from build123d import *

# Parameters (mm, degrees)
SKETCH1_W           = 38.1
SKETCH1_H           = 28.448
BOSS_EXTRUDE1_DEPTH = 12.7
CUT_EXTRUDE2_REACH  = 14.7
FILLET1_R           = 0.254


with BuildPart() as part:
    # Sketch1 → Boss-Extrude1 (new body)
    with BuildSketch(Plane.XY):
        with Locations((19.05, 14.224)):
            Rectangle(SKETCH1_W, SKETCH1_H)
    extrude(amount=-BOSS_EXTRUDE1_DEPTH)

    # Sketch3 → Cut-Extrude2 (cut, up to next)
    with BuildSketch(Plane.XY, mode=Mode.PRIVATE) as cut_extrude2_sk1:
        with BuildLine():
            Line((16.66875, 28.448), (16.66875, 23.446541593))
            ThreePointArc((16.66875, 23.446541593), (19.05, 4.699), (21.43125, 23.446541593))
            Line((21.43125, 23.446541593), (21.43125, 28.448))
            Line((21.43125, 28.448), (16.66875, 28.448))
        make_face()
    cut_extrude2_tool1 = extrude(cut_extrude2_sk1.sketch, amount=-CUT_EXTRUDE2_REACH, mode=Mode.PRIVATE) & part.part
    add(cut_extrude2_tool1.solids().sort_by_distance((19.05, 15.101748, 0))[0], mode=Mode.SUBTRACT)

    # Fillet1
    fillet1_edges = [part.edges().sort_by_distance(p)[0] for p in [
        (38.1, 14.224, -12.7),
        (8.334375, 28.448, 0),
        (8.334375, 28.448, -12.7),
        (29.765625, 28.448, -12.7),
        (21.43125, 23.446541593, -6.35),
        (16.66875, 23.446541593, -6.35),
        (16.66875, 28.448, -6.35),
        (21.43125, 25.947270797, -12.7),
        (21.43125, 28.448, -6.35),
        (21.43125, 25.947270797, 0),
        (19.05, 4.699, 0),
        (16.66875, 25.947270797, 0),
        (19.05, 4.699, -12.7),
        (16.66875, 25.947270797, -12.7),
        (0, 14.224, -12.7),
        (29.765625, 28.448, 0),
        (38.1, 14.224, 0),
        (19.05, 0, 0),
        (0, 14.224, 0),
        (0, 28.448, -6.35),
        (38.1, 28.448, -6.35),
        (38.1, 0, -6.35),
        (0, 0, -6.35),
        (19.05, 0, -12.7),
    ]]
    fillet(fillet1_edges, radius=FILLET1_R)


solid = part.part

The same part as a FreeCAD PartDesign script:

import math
import FreeCAD as App
import Part
import Sketcher
from FreeCAD import Vector
Q = App.Units.Quantity

doc = App.newDocument("Part")
body = doc.addObject("PartDesign::Body", "Body")

sketch1 = doc.addObject("Sketcher::SketchObject", "Sketch")
body.addObject(sketch1)
sketch1.AttachmentSupport = (doc.XY_Plane, [""])
sketch1.MapMode = "FlatFace"
sketch1.addGeometry([
    Part.LineSegment(Vector(0, 28, 0), Vector(0, 0, 0)),
    Part.LineSegment(Vector(0, 0, 0), Vector(38, 0, 0)),
    Part.LineSegment(Vector(38, 0, 0), Vector(38, 28, 0)),
    Part.LineSegment(Vector(38, 28, 0), Vector(0, 28, 0)),
], False)
sketch1.addConstraint([
    Sketcher.Constraint("Coincident", 0, 2, 1, 1),
    Sketcher.Constraint("Coincident", 1, 2, 2, 1),
    Sketcher.Constraint("Coincident", 2, 2, 3, 1),
    Sketcher.Constraint("Coincident", 3, 2, 0, 1),
    Sketcher.Constraint("Vertical", 0),
    Sketcher.Constraint("Horizontal", 1),
    Sketcher.Constraint("Vertical", 2),
    Sketcher.Constraint("Horizontal", 3),
    Sketcher.Constraint("Coincident", 0, 2, -1, 1),
    Sketcher.Constraint("DistanceX", 1, 1, 1, 2, Q("1.5 in")),
    Sketcher.Constraint("DistanceY", 0, 2, 0, 1, Q("1.12 in")),
])
pad1 = doc.addObject("PartDesign::Pad", "Pad")
body.addObject(pad1)
pad1.Profile = sketch1
pad1.Length = Q("0.5 in")
pad1.Reversed = True

sketch2 = doc.addObject("Sketcher::SketchObject", "Sketch001")
body.addObject(sketch2)
sketch2.AttachmentSupport = (doc.XY_Plane, [""])
sketch2.MapMode = "FlatFace"
sketch2.addGeometry([
    Part.LineSegment(Vector(16.7, 28.4, 0), Vector(16.7, 23.4, 0)),
    Part.ArcOfCircle(Part.Circle(Vector(19.1, 14.2, 0), Vector(0, 0, 1), 9.5), math.radians(104), math.radians(436)),
    Part.LineSegment(Vector(21.4, 23.4, 0), Vector(21.4, 28.4, 0)),
    Part.LineSegment(Vector(21.4, 28.4, 0), Vector(16.7, 28.4, 0)),
], False)
sketch2.addConstraint([
    Sketcher.Constraint("Coincident", 0, 2, 1, 1),
    Sketcher.Constraint("Coincident", 1, 2, 2, 1),
    Sketcher.Constraint("Coincident", 2, 2, 3, 1),
    Sketcher.Constraint("Coincident", 3, 2, 0, 1),
    Sketcher.Constraint("Vertical", 0),
    Sketcher.Constraint("Vertical", 2),
    Sketcher.Constraint("Horizontal", 3),
    Sketcher.Constraint("Horizontal", 0, 2, 1, 2),
    Sketcher.Constraint("Radius", 1, Q("0.375 in")),
    Sketcher.Constraint("DistanceX", 3, 2, 3, 1, Q("0.1875 in")),
    Sketcher.Constraint("DistanceX", -1, 1, 1, 3, Q("0.75 in")),
    Sketcher.Constraint("DistanceY", -1, 1, 1, 3, Q("0.56 in")),
    Sketcher.Constraint("DistanceY", -1, 1, 2, 2, Q("1.12 in")),
])
pocket1 = doc.addObject("PartDesign::Pocket", "Pocket")
body.addObject(pocket1)
pocket1.Profile = sketch2
pocket1.Type = "UpToFirst"
doc.recompute()

fillet = doc.addObject("PartDesign::Fillet", "Fillet")
body.addObject(fillet)
fillet.Base = (pocket1, ["Edge1"])
fillet.UseAllEdges = True
fillet.Radius = Q("0.01 in")

doc.recompute()
